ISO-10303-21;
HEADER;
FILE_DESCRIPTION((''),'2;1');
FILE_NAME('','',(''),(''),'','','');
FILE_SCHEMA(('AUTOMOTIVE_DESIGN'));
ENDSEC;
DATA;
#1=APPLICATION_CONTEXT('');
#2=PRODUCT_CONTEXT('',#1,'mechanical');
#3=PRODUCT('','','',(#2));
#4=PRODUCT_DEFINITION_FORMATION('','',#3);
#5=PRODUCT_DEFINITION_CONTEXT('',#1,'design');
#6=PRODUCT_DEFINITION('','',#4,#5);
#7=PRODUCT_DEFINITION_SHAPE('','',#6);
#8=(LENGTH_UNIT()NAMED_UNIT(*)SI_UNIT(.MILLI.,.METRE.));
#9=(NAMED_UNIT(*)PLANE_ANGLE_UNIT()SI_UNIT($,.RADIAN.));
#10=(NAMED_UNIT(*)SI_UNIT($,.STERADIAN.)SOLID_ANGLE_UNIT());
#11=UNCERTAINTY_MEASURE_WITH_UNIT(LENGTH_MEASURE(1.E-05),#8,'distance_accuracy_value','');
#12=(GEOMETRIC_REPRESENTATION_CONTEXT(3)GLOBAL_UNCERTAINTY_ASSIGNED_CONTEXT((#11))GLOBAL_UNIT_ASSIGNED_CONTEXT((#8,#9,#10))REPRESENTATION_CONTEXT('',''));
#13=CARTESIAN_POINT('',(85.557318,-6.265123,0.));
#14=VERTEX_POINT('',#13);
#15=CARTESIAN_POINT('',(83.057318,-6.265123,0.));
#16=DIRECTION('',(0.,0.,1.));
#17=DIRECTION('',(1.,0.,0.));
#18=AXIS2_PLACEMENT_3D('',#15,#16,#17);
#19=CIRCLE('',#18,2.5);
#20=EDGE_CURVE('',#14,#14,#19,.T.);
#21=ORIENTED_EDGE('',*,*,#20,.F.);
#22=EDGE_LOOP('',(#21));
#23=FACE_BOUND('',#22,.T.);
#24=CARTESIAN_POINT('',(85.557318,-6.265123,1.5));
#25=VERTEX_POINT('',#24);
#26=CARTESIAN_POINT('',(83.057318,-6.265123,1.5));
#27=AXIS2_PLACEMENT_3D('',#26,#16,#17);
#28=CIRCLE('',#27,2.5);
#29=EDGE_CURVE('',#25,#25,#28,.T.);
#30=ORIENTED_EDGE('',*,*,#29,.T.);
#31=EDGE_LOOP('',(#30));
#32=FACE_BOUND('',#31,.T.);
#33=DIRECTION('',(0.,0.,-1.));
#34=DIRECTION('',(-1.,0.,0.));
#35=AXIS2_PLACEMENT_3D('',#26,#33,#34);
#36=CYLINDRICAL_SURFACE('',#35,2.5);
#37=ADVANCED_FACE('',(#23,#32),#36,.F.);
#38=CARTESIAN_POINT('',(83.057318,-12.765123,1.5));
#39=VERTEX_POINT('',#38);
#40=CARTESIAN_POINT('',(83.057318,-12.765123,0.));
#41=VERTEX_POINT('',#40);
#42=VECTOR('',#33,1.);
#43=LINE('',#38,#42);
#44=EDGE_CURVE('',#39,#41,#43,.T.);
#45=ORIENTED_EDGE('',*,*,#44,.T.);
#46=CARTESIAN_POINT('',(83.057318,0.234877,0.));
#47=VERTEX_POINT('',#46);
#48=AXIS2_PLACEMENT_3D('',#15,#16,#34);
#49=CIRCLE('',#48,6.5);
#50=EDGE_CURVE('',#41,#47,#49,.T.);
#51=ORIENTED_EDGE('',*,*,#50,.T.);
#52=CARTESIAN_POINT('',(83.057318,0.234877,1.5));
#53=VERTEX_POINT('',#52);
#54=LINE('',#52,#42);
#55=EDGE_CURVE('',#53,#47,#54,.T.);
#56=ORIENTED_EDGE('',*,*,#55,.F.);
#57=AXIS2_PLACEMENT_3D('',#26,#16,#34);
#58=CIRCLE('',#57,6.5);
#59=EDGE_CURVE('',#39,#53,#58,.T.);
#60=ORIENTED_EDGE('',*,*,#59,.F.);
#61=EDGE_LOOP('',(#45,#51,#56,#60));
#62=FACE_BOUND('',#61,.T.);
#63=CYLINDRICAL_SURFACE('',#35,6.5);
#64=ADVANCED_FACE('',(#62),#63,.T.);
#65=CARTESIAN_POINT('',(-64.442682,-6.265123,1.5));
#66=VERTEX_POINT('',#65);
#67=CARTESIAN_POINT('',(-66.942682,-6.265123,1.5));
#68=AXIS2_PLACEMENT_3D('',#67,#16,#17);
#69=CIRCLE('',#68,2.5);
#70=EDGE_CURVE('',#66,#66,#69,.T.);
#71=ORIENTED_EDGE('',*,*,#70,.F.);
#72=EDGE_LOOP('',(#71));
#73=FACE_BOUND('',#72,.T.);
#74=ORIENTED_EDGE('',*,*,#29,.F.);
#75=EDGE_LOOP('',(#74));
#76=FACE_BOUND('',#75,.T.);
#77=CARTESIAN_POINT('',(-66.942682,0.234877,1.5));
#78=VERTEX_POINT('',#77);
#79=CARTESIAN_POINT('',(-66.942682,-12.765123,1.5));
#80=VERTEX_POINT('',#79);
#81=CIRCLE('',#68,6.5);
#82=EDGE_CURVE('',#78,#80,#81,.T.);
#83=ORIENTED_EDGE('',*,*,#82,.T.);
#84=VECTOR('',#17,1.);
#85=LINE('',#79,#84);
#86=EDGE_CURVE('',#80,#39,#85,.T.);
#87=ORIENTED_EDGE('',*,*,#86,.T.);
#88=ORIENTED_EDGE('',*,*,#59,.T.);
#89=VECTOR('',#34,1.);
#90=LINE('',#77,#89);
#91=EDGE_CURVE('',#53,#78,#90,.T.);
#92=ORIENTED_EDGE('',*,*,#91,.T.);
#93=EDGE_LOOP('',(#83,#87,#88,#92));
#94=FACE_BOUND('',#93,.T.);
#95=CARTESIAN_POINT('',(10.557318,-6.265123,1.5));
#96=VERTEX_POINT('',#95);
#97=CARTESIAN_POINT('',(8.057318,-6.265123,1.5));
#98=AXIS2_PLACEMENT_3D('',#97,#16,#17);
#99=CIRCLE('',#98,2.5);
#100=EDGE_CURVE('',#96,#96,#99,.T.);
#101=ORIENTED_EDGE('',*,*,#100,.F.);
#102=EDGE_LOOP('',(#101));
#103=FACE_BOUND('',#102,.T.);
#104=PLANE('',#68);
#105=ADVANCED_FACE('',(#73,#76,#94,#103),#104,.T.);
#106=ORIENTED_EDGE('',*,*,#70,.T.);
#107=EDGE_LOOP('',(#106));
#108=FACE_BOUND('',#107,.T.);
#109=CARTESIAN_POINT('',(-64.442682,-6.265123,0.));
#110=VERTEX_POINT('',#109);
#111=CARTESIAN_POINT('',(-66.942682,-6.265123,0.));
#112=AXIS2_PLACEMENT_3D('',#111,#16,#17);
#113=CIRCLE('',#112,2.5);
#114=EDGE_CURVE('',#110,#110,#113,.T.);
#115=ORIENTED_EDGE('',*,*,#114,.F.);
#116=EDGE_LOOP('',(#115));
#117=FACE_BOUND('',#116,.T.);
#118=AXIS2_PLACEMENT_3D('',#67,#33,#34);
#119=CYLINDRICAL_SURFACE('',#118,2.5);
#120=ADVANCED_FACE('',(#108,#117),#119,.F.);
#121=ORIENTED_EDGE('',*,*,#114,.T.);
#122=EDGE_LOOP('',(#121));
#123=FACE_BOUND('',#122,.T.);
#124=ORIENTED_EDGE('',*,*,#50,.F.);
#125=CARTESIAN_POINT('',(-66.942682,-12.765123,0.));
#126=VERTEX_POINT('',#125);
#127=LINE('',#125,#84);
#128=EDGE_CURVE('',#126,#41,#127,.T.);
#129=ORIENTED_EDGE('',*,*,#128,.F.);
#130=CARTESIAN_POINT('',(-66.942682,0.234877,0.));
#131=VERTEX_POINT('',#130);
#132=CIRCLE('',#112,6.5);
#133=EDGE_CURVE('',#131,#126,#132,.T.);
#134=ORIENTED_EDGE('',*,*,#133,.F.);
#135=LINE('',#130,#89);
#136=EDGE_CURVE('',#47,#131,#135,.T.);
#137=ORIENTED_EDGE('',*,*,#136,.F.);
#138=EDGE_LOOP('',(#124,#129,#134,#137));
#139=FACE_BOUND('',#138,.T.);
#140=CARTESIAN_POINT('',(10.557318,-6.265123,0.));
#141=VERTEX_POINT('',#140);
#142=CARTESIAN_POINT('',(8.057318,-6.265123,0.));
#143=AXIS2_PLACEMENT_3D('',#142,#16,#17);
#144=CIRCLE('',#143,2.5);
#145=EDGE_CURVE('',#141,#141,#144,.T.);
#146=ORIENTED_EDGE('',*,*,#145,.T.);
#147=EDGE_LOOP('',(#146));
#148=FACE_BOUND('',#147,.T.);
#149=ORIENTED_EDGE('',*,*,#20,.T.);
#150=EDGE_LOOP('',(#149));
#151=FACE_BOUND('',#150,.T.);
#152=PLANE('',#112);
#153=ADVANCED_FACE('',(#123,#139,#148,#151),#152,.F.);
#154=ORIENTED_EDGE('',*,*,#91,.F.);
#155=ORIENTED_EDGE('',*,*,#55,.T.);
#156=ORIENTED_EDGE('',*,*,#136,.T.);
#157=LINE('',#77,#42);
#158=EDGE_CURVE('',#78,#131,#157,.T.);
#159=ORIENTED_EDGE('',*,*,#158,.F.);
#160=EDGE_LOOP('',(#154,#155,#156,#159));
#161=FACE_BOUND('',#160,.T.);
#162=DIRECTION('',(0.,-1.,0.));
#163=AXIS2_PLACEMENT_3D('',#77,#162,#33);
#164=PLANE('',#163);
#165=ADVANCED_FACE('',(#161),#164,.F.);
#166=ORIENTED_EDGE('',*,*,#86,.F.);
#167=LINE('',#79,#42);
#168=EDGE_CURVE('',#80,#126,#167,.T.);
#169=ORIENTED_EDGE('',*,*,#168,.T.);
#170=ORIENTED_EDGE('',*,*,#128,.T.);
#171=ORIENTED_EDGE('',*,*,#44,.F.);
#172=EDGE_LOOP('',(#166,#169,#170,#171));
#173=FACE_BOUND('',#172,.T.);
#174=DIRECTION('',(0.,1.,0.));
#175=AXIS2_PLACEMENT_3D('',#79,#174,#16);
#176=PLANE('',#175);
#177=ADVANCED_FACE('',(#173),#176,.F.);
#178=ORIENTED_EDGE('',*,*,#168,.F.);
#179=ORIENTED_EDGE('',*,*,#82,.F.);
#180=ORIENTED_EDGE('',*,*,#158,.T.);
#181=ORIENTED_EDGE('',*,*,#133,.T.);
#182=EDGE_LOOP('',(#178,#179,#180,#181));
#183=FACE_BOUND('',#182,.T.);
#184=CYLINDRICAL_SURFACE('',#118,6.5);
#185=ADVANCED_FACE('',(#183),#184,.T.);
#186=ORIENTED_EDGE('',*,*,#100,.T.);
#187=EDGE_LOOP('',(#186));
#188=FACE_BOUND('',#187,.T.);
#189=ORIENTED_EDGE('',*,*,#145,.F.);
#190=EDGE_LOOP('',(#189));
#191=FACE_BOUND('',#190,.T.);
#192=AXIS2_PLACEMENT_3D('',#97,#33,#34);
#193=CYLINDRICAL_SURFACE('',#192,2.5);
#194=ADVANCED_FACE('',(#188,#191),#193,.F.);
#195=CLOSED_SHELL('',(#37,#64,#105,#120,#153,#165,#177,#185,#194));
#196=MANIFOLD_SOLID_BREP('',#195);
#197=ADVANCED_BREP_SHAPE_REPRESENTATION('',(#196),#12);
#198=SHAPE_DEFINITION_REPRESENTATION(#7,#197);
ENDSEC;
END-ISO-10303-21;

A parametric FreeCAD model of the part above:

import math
import FreeCAD as App
import Part
import Sketcher

V = App.Vector

doc = App.newDocument("Part")
body = doc.addObject("PartDesign::Body", "Body")

sketch1 = body.newObject("Sketcher::SketchObject", "Sketch")
sketch1.AttachmentSupport = (doc.getObject("XY_Plane"), [""])
sketch1.MapMode = "FlatFace"
sketch1.addGeometry(Part.LineSegment(V(83.057318, 0.234877, 0), V(-66.942682, 0.234877, 0)), False)
sketch1.addGeometry(Part.ArcOfCircle(Part.Circle(V(-66.942682, -6.265123, 0), V(0, 0, 1), 6.5), math.radians(90), math.radians(270)), False)
sketch1.addGeometry(Part.LineSegment(V(-66.942682, -12.765123, 0), V(83.057318, -12.765123, 0)), False)
sketch1.addGeometry(Part.ArcOfCircle(Part.Circle(V(83.057318, -6.265123, 0), V(0, 0, 1), 6.5), math.radians(-90), math.radians(90)), False)
sketch1.addGeometry(Part.Circle(V(83.057318, -6.265123, 0), V(0, 0, 1), 2.5), False)
sketch1.addGeometry(Part.Circle(V(8.057318, -6.265123, 0), V(0, 0, 1), 2.5), False)
sketch1.addGeometry(Part.Circle(V(-66.942682, -6.265123, 0), V(0, 0, 1), 2.5), False)
sketch1.addConstraint(Sketcher.Constraint("Tangent", 0, 2, 1, 1))
sketch1.addConstraint(Sketcher.Constraint("Tangent", 1, 2, 2, 1))
sketch1.addConstraint(Sketcher.Constraint("Tangent", 2, 2, 3, 1))
sketch1.addConstraint(Sketcher.Constraint("Tangent", 3, 2, 0, 1))
sketch1.addConstraint(Sketcher.Constraint("Horizontal", 0))
sketch1.addConstraint(Sketcher.Constraint("Horizontal", 2))
sketch1.addConstraint(Sketcher.Constraint("Coincident", 4, 3, 3, 3))
sketch1.addConstraint(Sketcher.Constraint("Coincident", 6, 3, 1, 3))
sketch1.addConstraint(Sketcher.Constraint("Equal", 4, 5))
sketch1.addConstraint(Sketcher.Constraint("Equal", 5, 6))
sketch1.addConstraint(Sketcher.Constraint("Horizontal", 4, 3, 5, 3))
sketch1.addConstraint(Sketcher.Constraint("Diameter", 4, 5.0))
sketch1.addConstraint(Sketcher.Constraint("Radius", 1, 6.5))
sketch1.addConstraint(Sketcher.Constraint("DistanceX", 0, 2, 0, 1, 150.0))
sketch1.addConstraint(Sketcher.Constraint("DistanceX", 1, 3, 5, 3, 75.0))
sketch1.addConstraint(Sketcher.Constraint("DistanceX", 1, 3, -1, 1, 66.942682))
sketch1.addConstraint(Sketcher.Constraint("DistanceY", 1, 3, -1, 1, 6.265123))
pad1 = body.newObject("PartDesign::Pad", "Pad")
pad1.Profile = sketch1
pad1.Length = 1.5

doc.recompute()
